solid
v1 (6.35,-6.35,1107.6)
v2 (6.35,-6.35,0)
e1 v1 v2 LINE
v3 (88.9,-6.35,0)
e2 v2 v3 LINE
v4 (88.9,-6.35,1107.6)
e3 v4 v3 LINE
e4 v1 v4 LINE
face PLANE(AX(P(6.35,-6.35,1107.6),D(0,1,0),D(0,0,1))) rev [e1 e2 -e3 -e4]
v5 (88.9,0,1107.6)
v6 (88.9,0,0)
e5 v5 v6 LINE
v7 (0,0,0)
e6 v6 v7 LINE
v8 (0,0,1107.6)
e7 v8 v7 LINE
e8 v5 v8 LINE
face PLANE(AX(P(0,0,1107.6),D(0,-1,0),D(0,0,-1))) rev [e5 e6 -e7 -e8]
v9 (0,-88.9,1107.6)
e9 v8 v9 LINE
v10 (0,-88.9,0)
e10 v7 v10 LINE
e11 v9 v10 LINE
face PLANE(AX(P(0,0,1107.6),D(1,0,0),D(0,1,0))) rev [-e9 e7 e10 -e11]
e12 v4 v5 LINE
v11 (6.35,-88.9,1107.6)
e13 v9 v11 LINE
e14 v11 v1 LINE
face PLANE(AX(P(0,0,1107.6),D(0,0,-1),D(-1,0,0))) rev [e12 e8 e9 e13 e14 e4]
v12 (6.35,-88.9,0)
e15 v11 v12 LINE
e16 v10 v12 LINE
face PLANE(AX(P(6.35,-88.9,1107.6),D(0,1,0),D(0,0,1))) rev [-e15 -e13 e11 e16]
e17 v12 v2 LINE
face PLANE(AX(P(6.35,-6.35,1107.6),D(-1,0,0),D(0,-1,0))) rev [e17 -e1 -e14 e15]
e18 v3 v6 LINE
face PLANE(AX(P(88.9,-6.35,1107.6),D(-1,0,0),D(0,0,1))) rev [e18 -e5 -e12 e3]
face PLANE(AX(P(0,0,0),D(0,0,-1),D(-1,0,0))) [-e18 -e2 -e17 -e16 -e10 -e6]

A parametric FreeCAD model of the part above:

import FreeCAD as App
import Part
import Sketcher
from FreeCAD import Vector
Q = App.Units.Quantity


def add_polygon(sketch, points):
    """Adds a closed chain of lines whose ends are joined by coincident constraints."""
    first, n = sketch.GeometryCount, len(points)
    for a, b in zip(points, points[1:] + points[:1]):
        sketch.addGeometry(Part.LineSegment(App.Vector(*a, 0), App.Vector(*b, 0)), False)
    for i in range(n):
        sketch.addConstraint(Sketcher.Constraint("Coincident", first + i, 2, first + (i + 1) % n, 1))

doc = App.newDocument("Part")
body = doc.addObject("PartDesign::Body", "Body")

# Sketch on XY plane
sketch1 = body.newObject("Sketcher::SketchObject", "Sketch")
sketch1.AttachmentSupport = (doc.getObject("XY_Plane"), [""])
sketch1.MapMode = "FlatFace"
add_polygon(sketch1, [(89, 0), (0, 0), (0, -89), (6, -89), (6, -6), (89, -6)])  # lines 0-5
sketch1.addConstraint(Sketcher.Constraint("Horizontal", 0))
sketch1.addConstraint(Sketcher.Constraint("Vertical", 1))
sketch1.addConstraint(Sketcher.Constraint("Horizontal", 2))
sketch1.addConstraint(Sketcher.Constraint("Vertical", 3))
sketch1.addConstraint(Sketcher.Constraint("Horizontal", 4))
sketch1.addConstraint(Sketcher.Constraint("Vertical", 5))
sketch1.addConstraint(Sketcher.Constraint("Coincident", 0, 2, -1, 1))
sketch1.addConstraint(Sketcher.Constraint("Equal", 0, 1))
sketch1.addConstraint(Sketcher.Constraint("Equal", 4, 3))
sketch1.addConstraint(Sketcher.Constraint("DistanceX", 0, 2, 0, 1, Q("3.5 in")))
sketch1.addConstraint(Sketcher.Constraint("DistanceX", 2, 1, 2, 2, Q("0.25 in")))
pad1 = body.newObject("PartDesign::Pad", "Pad")
pad1.Profile = sketch1
pad1.Length = 1107.6

doc.recompute()
